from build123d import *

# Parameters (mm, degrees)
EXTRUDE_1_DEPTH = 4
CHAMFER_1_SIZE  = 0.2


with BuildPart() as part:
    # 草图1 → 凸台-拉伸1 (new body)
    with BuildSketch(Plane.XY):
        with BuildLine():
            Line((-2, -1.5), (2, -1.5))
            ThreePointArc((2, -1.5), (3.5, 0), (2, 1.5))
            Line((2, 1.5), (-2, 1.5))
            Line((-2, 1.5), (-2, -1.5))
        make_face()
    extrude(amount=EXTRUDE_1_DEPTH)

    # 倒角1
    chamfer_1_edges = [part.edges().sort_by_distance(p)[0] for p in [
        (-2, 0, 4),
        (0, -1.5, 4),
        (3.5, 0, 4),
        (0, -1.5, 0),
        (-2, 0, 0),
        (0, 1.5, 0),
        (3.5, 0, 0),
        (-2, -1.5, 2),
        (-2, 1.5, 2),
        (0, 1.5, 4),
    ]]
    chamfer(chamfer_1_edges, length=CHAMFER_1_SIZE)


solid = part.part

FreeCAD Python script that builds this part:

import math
import FreeCAD as App
import Part
import Sketcher
from FreeCAD import Vector

doc = App.newDocument("Part")
body = doc.addObject("PartDesign::Body", "Body")

sketch1 = doc.addObject("Sketcher::SketchObject", "Sketch")
body.addObject(sketch1)
sketch1.AttachmentSupport = (doc.XY_Plane, [""])
sketch1.MapMode = "FlatFace"
sketch1.addGeometry(Part.LineSegment(Vector(-2, -1.5, 0), Vector(2, -1.5, 0)), False)
sketch1.addGeometry(Part.ArcOfCircle(Part.Circle(Vector(2, 0, 0), Vector(0, 0, 1), 1.5), math.radians(-90), math.radians(90)), False)
sketch1.addGeometry(Part.LineSegment(Vector(2, 1.5, 0), Vector(-2, 1.5, 0)), False)
sketch1.addGeometry(Part.LineSegment(Vector(-2, 1.5, 0), Vector(-2, -1.5, 0)), False)
sketch1.addConstraint(Sketcher.Constraint("Tangent", 0, 2, 1, 1))
sketch1.addConstraint(Sketcher.Constraint("Tangent", 1, 2, 2, 1))
sketch1.addConstraint(Sketcher.Constraint("Coincident", 2, 2, 3, 1))
sketch1.addConstraint(Sketcher.Constraint("Coincident", 3, 2, 0, 1))
sketch1.addConstraint(Sketcher.Constraint("Horizontal", 0))
sketch1.addConstraint(Sketcher.Constraint("Horizontal", 2))
sketch1.addConstraint(Sketcher.Constraint("Vertical", 3))
sketch1.addConstraint(Sketcher.Constraint("Symmetric", 0, 2, 2, 2, -1, 1))
sketch1.addConstraint(Sketcher.Constraint("Radius", 1, 1.5))
sketch1.addConstraint(Sketcher.Constraint("DistanceX", 0, 1, 0, 2, 4.0))
pad1 = doc.addObject("PartDesign::Pad", "Pad")
body.addObject(pad1)
pad1.Profile = sketch1
pad1.Length = 4
doc.recompute()

chamfer = doc.addObject("PartDesign::Chamfer", "Chamfer")
body.addObject(chamfer)
chamfer.Base = (pad1, ["Edge1"])
chamfer.UseAllEdges = True
chamfer.Size = 0.2

doc.recompute()
